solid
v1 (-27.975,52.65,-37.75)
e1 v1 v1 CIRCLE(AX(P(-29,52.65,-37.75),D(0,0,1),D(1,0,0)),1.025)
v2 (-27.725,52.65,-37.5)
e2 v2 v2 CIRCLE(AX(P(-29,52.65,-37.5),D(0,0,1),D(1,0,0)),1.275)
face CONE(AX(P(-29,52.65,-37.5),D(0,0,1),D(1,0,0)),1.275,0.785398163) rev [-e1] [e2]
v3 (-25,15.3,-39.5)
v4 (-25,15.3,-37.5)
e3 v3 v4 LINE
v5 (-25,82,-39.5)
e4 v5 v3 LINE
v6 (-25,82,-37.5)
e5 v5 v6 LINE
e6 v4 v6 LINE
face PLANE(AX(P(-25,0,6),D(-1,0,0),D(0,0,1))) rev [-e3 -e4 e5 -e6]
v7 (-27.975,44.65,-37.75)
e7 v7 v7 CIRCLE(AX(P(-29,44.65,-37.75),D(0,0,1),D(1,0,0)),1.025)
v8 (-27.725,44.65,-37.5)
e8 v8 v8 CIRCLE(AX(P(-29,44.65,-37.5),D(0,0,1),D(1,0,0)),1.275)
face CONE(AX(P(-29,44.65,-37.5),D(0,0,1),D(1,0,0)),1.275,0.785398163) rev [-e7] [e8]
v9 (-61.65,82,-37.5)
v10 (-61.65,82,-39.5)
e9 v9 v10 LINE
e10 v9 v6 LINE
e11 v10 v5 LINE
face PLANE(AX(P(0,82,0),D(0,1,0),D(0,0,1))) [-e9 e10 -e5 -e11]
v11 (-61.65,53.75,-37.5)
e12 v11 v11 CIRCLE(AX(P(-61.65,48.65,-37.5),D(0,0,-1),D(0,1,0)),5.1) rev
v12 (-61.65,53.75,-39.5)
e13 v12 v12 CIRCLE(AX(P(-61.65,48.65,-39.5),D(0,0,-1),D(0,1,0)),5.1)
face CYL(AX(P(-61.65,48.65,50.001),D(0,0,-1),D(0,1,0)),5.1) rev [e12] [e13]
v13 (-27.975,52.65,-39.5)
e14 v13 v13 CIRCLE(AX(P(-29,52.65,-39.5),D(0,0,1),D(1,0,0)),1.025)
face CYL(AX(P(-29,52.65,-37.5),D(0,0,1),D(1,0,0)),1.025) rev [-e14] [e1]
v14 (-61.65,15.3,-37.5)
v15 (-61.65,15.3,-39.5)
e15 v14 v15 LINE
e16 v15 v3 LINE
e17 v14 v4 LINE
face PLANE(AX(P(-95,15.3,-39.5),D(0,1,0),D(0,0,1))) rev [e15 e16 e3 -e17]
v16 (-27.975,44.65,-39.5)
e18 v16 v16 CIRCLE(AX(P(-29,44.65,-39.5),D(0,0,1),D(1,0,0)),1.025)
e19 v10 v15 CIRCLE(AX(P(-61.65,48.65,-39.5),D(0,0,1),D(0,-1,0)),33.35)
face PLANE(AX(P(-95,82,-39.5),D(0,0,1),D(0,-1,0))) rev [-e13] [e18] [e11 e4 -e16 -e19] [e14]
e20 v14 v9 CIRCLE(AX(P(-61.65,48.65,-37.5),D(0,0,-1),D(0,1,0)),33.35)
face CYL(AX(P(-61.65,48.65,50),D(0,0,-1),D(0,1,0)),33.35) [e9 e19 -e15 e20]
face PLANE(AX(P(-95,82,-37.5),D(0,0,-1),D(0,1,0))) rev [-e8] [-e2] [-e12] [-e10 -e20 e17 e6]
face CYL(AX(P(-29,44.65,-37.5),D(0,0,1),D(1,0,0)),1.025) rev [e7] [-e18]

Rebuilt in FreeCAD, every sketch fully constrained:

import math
import FreeCAD as App
import Part
import Sketcher

V = App.Vector
Q = App.Units.Quantity


def edges_at(feature, points):
    """Names of the edges that pass closest to the given points."""
    edges = feature.Shape.Edges
    near = lambda p: min(range(len(edges)), key=lambda i: edges[i].distToShape(Part.Vertex(*p))[0])
    return sorted({f"Edge{near(p) + 1}" for p in points})


def add_polygon(sketch, points):
    """Adds a closed chain of lines whose ends are joined by coincident constraints."""
    first, n = sketch.GeometryCount, len(points)
    for a, b in zip(points, points[1:] + points[:1]):
        sketch.addGeometry(Part.LineSegment(App.Vector(*a, 0), App.Vector(*b, 0)), False)
    for i in range(n):
        sketch.addConstraint(Sketcher.Constraint("Coincident", first + i, 2, first + (i + 1) % n, 1))

doc = App.newDocument("Part")
body = doc.addObject("PartDesign::Body", "Body")

sketch1 = body.newObject("Sketcher::SketchObject", "Sketch")
sketch1.AttachmentSupport = (doc.getObject("XZ_Plane"), [""])
sketch1.MapMode = "FlatFace"
add_polygon(sketch1, [(-25, -50), (-25, 50), (25, 50), (25, -50)])
sketch1.addConstraint([
    Sketcher.Constraint("Vertical", 0),
    Sketcher.Constraint("Horizontal", 1),
    Sketcher.Constraint("Vertical", 2),
    Sketcher.Constraint("Horizontal", 3),
    Sketcher.Constraint("Symmetric", 0, 2, 2, 2, -1, 1),
    Sketcher.Constraint("DistanceX", 1, 1, 1, 2, Q("50 mm")),
    Sketcher.Constraint("DistanceY", 0, 1, 0, 2, Q("100 mm")),
])
pad1 = body.newObject("PartDesign::Pad", "Pad")
pad1.Profile = sketch1
pad1.Length = 2
pad1.Reversed = True

sketch2 = body.newObject("Sketcher::SketchObject", "Sketch001")
sketch2.AttachmentSupport = (doc.getObject("XZ_Plane"), [""])
sketch2.MapMode = "FlatFace"
sketch2.AttachmentOffset = App.Placement(V(0, 0, -2), App.Rotation())
add_polygon(sketch2, [(-25, -50), (-25, 50), (-22, 50), (-22, -50)])
sketch2.addConstraint([
    Sketcher.Constraint("Vertical", 0),
    Sketcher.Constraint("Horizontal", 1),
    Sketcher.Constraint("Vertical", 2),
    Sketcher.Constraint("Horizontal", 3),
    Sketcher.Constraint("DistanceX", 1, 1, 1, 2, Q("3 mm")),
    Sketcher.Constraint("DistanceY", 0, 1, 0, 2, Q("100 mm")),
    Sketcher.Constraint("DistanceX", 0, 2, -1, 1, Q("25 mm")),
    Sketcher.Constraint("DistanceY", -1, 1, 0, 2, Q("50 mm")),
])
pad2 = body.newObject("PartDesign::Pad", "Pad001")
pad2.Profile = sketch2
pad2.Length = 80
pad2.Reversed = True

sketch3 = body.newObject("Sketcher::SketchObject", "Sketch002")
sketch3.AttachmentSupport = (doc.getObject("YZ_Plane"), [""])
sketch3.MapMode = "FlatFace"
sketch3.AttachmentOffset = App.Placement(V(0, 0, -25), App.Rotation())
add_polygon(sketch3, [(82, -50), (15.3, -50), (15.3, -48), (82, -48)])
sketch3.addConstraint([
    Sketcher.Constraint("Horizontal", 0),
    Sketcher.Constraint("Vertical", 1),
    Sketcher.Constraint("Horizontal", 2),
    Sketcher.Constraint("Vertical", 3),
    Sketcher.Constraint("DistanceY", 1, 1, 1, 2, Q("2 mm")),
    Sketcher.Constraint("DistanceX", 0, 2, 0, 1, Q("66.7 mm")),
    Sketcher.Constraint("DistanceY", 0, 2, -1, 1, Q("50 mm")),
    Sketcher.Constraint("DistanceX", -1, 1, 2, 2, Q("82 mm")),
])
pad3 = body.newObject("PartDesign::Pad", "Pad002")
pad3.Profile = sketch3
pad3.Length = 70
pad3.Reversed = True

sketch4 = body.newObject("Sketcher::SketchObject", "Sketch003")
sketch4.AttachmentSupport = (doc.getObject("XY_Plane"), [""])
sketch4.MapMode = "FlatFace"
sketch4.AttachmentOffset = App.Placement(V(0, 0, -50), App.Rotation())
sketch4.addGeometry([
    Part.LineSegment(V(-95, 82, 0), V(-62, 82, 0)),
    Part.ArcOfCircle(Part.Circle(V(-62, 49, 0), V(0, 0, 1), 33), math.radians(90), math.radians(180)),
    Part.LineSegment(V(-95, 49, 0), V(-95, 82, 0)),
], False)
sketch4.addConstraint([
    Sketcher.Constraint("Tangent", 0, 2, 1, 1),
    Sketcher.Constraint("Tangent", 1, 2, 2, 1),
    Sketcher.Constraint("Coincident", 2, 2, 0, 1),
    Sketcher.Constraint("Horizontal", 0),
    Sketcher.Constraint("Vertical", 2),
    Sketcher.Constraint("Radius", 1, Q("33.35 mm")),
    Sketcher.Constraint("DistanceY", -1, 1, 0, 2, Q("82 mm")),
    Sketcher.Constraint("DistanceX", 1, 2, -1, 1, Q("95 mm")),
])
pocket1 = body.newObject("PartDesign::Pocket", "Pocket")
pocket1.Profile = sketch4
pocket1.Type = "UpToFirst"
pocket1.Reversed = True

sketch5 = body.newObject("Sketcher::SketchObject", "Sketch004")
sketch5.AttachmentSupport = (doc.getObject("XY_Plane"), [""])
sketch5.MapMode = "FlatFace"
sketch5.AttachmentOffset = App.Placement(V(0, 0, -50), App.Rotation())
sketch5.addGeometry([
    Part.ArcOfCircle(Part.Circle(V(-62, 49, 0), V(0, 0, 1), 33), math.radians(180), math.radians(270)),
    Part.LineSegment(V(-62, 15, 0), V(-95, 15, 0)),
    Part.LineSegment(V(-95, 15, 0), V(-95, 49, 0)),
], False)
sketch5.addConstraint([
    Sketcher.Constraint("Tangent", 0, 2, 1, 1),
    Sketcher.Constraint("Coincident", 1, 2, 2, 1),
    Sketcher.Constraint("Tangent", 2, 2, 0, 1),
    Sketcher.Constraint("Horizontal", 1),
    Sketcher.Constraint("Vertical", 2),
    Sketcher.Constraint("Radius", 0, Q("33.35 mm")),
    Sketcher.Constraint("DistanceX", 1, 2, -1, 1, Q("95 mm")),
    Sketcher.Constraint("DistanceY", -1, 1, 0, 2, Q("15.3 mm")),
])
pocket2 = body.newObject("PartDesign::Pocket", "Pocket001")
pocket2.Profile = sketch5
pocket2.Type = "UpToFirst"
pocket2.Reversed = True

sketch6 = body.newObject("Sketcher::SketchObject", "Sketch005")
sketch6.AttachmentSupport = (doc.getObject("YZ_Plane"), [""])
sketch6.MapMode = "FlatFace"
sketch6.AttachmentOffset = App.Placement(V(0, 0, -25), App.Rotation())
add_polygon(sketch6, [(82, 6), (15.3, 6), (15.3, 8), (82, 8)])
sketch6.addConstraint([
    Sketcher.Constraint("Horizontal", 0),
    Sketcher.Constraint("Vertical", 1),
    Sketcher.Constraint("Horizontal", 2),
    Sketcher.Constraint("Vertical", 3),
    Sketcher.Constraint("DistanceY", 1, 1, 1, 2, Q("2 mm")),
    Sketcher.Constraint("DistanceX", 0, 2, 0, 1, Q("66.7 mm")),
    Sketcher.Constraint("DistanceY", -1, 1, 0, 2, Q("6 mm")),
    Sketcher.Constraint("DistanceX", -1, 1, 2, 2, Q("82 mm")),
])
pad4 = body.newObject("PartDesign::Pad", "Pad003")
pad4.Profile = sketch6
pad4.Length = 70
pad4.Reversed = True

sketch7 = body.newObject("Sketcher::SketchObject", "Sketch006")
sketch7.AttachmentSupport = (doc.getObject("XY_Plane"), [""])
sketch7.MapMode = "FlatFace"
sketch7.AttachmentOffset = App.Placement(V(0, 0, 8), App.Rotation())
sketch7.addGeometry([
    Part.ArcOfCircle(Part.Circle(V(-62, 49, 0), V(0, 0, 1), 33), math.radians(90), math.radians(180)),
    Part.LineSegment(V(-62, 82, 0), V(-95, 82, 0)),
    Part.LineSegment(V(-95, 82, 0), V(-95, 49, 0)),
], False)
sketch7.addConstraint([
    Sketcher.Constraint("Tangent", 0, 1, 1, 1),
    Sketcher.Constraint("Coincident", 1, 2, 2, 1),
    Sketcher.Constraint("Tangent", 2, 2, 0, 2),
    Sketcher.Constraint("Horizontal", 1),
    Sketcher.Constraint("Vertical", 2),
    Sketcher.Constraint("Radius", 0, Q("33.35 mm")),
    Sketcher.Constraint("DistanceY", -1, 1, 0, 1, Q("82 mm")),
    Sketcher.Constraint("DistanceX", 1, 2, -1, 1, Q("95 mm")),
])
pocket3 = body.newObject("PartDesign::Pocket", "Pocket002")
pocket3.Profile = sketch7
pocket3.Type = "UpToFirst"

sketch8 = body.newObject("Sketcher::SketchObject", "Sketch007")
sketch8.AttachmentSupport = (doc.getObject("XY_Plane"), [""])
sketch8.MapMode = "FlatFace"
sketch8.AttachmentOffset = App.Placement(V(0, 0, 8), App.Rotation())
sketch8.addGeometry([
    Part.ArcOfCircle(Part.Circle(V(-62, 49, 0), V(0, 0, 1), 33), math.radians(180), math.radians(270)),
    Part.LineSegment(V(-95, 49, 0), V(-95, 15, 0)),
    Part.LineSegment(V(-95, 15, 0), V(-62, 15, 0)),
], False)
sketch8.addConstraint([
    Sketcher.Constraint("Tangent", 0, 1, 1, 1),
    Sketcher.Constraint("Coincident", 1, 2, 2, 1),
    Sketcher.Constraint("Tangent", 2, 2, 0, 2),
    Sketcher.Constraint("Vertical", 1),
    Sketcher.Constraint("Horizontal", 2),
    Sketcher.Constraint("Radius", 0, Q("33.35 mm")),
    Sketcher.Constraint("DistanceX", 0, 1, -1, 1, Q("95 mm")),
    Sketcher.Constraint("DistanceY", -1, 1, 1, 2, Q("15.3 mm")),
])
pocket4 = body.newObject("PartDesign::Pocket", "Pocket003")
pocket4.Profile = sketch8
pocket4.Type = "UpToFirst"

sketch9 = body.newObject("Sketcher::SketchObject", "Sketch008")
sketch9.AttachmentSupport = (doc.getObject("XY_Plane"), [""])
sketch9.MapMode = "FlatFace"
sketch9.AttachmentOffset = App.Placement(V(0, 0, 8), App.Rotation())
sketch9.addGeometry([
    Part.Circle(V(-79, 38.6, 0), V(0, 0, 1), 1.2),
    Part.Circle(V(-61.6, 68.7, 0), V(0, 0, 1), 1.2),
    Part.Circle(V(-44.3, 38.6, 0), V(0, 0, 1), 1.2),
], False)
sketch9.addConstraint([
    Sketcher.Constraint("Equal", 0, 1),
    Sketcher.Constraint("Equal", 1, 2),
    Sketcher.Constraint("Horizontal", 0, 3, 2, 3),
    Sketcher.Constraint("Diameter", 0, Q("2.5 mm")),
    Sketcher.Constraint("DistanceY", 0, 3, 1, 3, Q("30 mm")),
    Sketcher.Constraint("DistanceY", -1, 1, 0, 3, Q("38.65 mm")),
    Sketcher.Constraint("DistanceX", 1, 3, -1, 1, Q("61.65 mm")),
    Sketcher.Constraint("DistanceX", 0, 3, -1, 1, Q("78.970508 mm")),
    Sketcher.Constraint("DistanceX", 2, 3, -1, 1, Q("44.329492 mm")),
])
doc.recompute()
hole = body.newObject("PartDesign::Hole", "Hole")
hole.Profile = sketch9
hole.ThreadType = "None"
hole.Diameter = 2.5
hole.DepthType = "Dimension"
hole.Depth = 2
hole.DrillPoint = "Flat"
hole.HoleCutType = "Countersink"
hole.HoleCutDiameter = 3.05
hole.HoleCutCountersinkAngle = 90
doc.recompute()

fillet = body.newObject("PartDesign::Fillet", "Fillet")
fillet.Base = (hole, edges_at(hole, [(-23.5, 82, 50), (25, 1, 50), (25, 1, -50)]))
fillet.Radius = 2

sketch10 = body.newObject("Sketcher::SketchObject", "Sketch009")
sketch10.AttachmentSupport = (doc.getObject("XY_Plane"), [""])
sketch10.MapMode = "FlatFace"
sketch10.AttachmentOffset = App.Placement(V(0, 0, 8), App.Rotation())
sketch10.addGeometry(Part.Circle(V(-62, 49, 0), V(0, 0, 1), 11), False)
sketch10.addConstraint([
    Sketcher.Constraint("Diameter", 0, Q("22 mm")),
    Sketcher.Constraint("DistanceX", 0, 3, -1, 1, Q("61.65 mm")),
    Sketcher.Constraint("DistanceY", -1, 1, 0, 3, Q("48.65 mm")),
])
pocket5 = body.newObject("PartDesign::Pocket", "Pocket004")
pocket5.Profile = sketch10
pocket5.Type = "UpToFirst"

sketch11 = body.newObject("Sketcher::SketchObject", "Sketch010")
sketch11.AttachmentSupport = (doc.getObject("XY_Plane"), [""])
sketch11.MapMode = "FlatFace"
sketch11.AttachmentOffset = App.Placement(V(0, 0, -50), App.Rotation())
sketch11.addGeometry(Part.Circle(V(-62, 49, 0), V(0, 0, 1), 14), False)
sketch11.addConstraint([
    Sketcher.Constraint("Diameter", 0, Q("29 mm")),
    Sketcher.Constraint("DistanceX", 0, 3, -1, 1, Q("61.65 mm")),
    Sketcher.Constraint("DistanceY", -1, 1, 0, 3, Q("48.65 mm")),
])
pocket6 = body.newObject("PartDesign::Pocket", "Pocket005")
pocket6.Profile = sketch11
pocket6.Type = "UpToFirst"
pocket6.Reversed = True

sketch12 = body.newObject("Sketcher::SketchObject", "Sketch011")
sketch12.AttachmentSupport = (doc.getObject("YZ_Plane"), [""])
sketch12.MapMode = "FlatFace"
sketch12.AttachmentOffset = App.Placement(V(0, 0, -25), App.Rotation())
add_polygon(sketch12, [(82, -39.5), (15.3, -39.5), (15.3, -37.5), (82, -37.5)])
sketch12.addConstraint([
    Sketcher.Constraint("Horizontal", 0),
    Sketcher.Constraint("Vertical", 1),
    Sketcher.Constraint("Horizontal", 2),
    Sketcher.Constraint("Vertical", 3),
    Sketcher.Constraint("DistanceY", 1, 1, 1, 2, Q("2 mm")),
    Sketcher.Constraint("DistanceX", 0, 2, 0, 1, Q("66.7 mm")),
    Sketcher.Constraint("DistanceX", -1, 1, 2, 2, Q("82 mm")),
    Sketcher.Constraint("DistanceY", 0, 2, -1, 1, Q("39.5 mm")),
])
pad5 = body.newObject("PartDesign::Pad", "Pad004")
pad5.Profile = sketch12
pad5.Length = 70
pad5.Reversed = True

sketch13 = body.newObject("Sketcher::SketchObject", "Sketch012")
sketch13.AttachmentSupport = (doc.getObject("XY_Plane"), [""])
sketch13.MapMode = "FlatFace"
sketch13.AttachmentOffset = App.Placement(V(0, 0, -39.5), App.Rotation())
sketch13.addGeometry(Part.Circle(V(-62, 49, 0), V(0, 0, 1), 5), False)
sketch13.addConstraint([
    Sketcher.Constraint("Diameter", 0, Q("10.2 mm")),
    Sketcher.Constraint("DistanceX", 0, 3, -1, 1, Q("61.65 mm")),
    Sketcher.Constraint("DistanceY", -1, 1, 0, 3, Q("48.65 mm")),
])
pocket7 = body.newObject("PartDesign::Pocket", "Pocket006")
pocket7.Profile = sketch13
pocket7.Type = "UpToFirst"
pocket7.Reversed = True

sketch14 = body.newObject("Sketcher::SketchObject", "Sketch013")
sketch14.AttachmentSupport = (doc.getObject("XY_Plane"), [""])
sketch14.MapMode = "FlatFace"
sketch14.AttachmentOffset = App.Placement(V(0, 0, -39.5), App.Rotation())
sketch14.addGeometry([
    Part.LineSegment(V(-95, 15, 0), V(-95, 49, 0)),
    Part.ArcOfCircle(Part.Circle(V(-62, 49, 0), V(0, 0, 1), 33), math.radians(180), math.radians(270)),
    Part.LineSegment(V(-62, 15, 0), V(-95, 15, 0)),
    Part.LineSegment(V(-95, 49, 0), V(-95, 82, 0)),
    Part.LineSegment(V(-95, 82, 0), V(-62, 82, 0)),
    Part.ArcOfCircle(Part.Circle(V(-62, 49, 0), V(0, 0, 1), 33), math.radians(90), math.radians(180)),
], False)
sketch14.addConstraint([
    Sketcher.Constraint("Tangent", 0, 2, 1, 1),
    Sketcher.Constraint("Tangent", 1, 2, 2, 1),
    Sketcher.Constraint("Coincident", 2, 2, 0, 1),
    Sketcher.Constraint("Coincident", 3, 2, 4, 1),
    Sketcher.Constraint("Tangent", 4, 2, 5, 1),
    Sketcher.Constraint("Tangent", 5, 2, 3, 1),
    Sketcher.Constraint("Vertical", 0),
    Sketcher.Constraint("Horizontal", 2),
    Sketcher.Constraint("Vertical", 3),
    Sketcher.Constraint("Horizontal", 4),
    Sketcher.Constraint("Coincident", 5, 3, 1, 3),
    Sketcher.Constraint("Equal", 1, 5),
    Sketcher.Constraint("Radius", 1, Q("33.35 mm")),
    Sketcher.Constraint("DistanceX", 0, 2, -1, 1, Q("95 mm")),
    Sketcher.Constraint("DistanceY", -1, 1, 3, 2, Q("82 mm")),
])
pocket8 = body.newObject("PartDesign::Pocket", "Pocket007")
pocket8.Profile = sketch14
pocket8.Type = "ThroughAll"
pocket8.Midplane = True

sketch15 = body.newObject("Sketcher::SketchObject", "Sketch014")
sketch15.AttachmentSupport = (doc.getObject("YZ_Plane"), [""])
sketch15.MapMode = "FlatFace"
sketch15.AttachmentOffset = App.Placement(V(0, 0, -25), App.Rotation())
add_polygon(sketch15, [(82, -50), (15.3, -50), (15.3, -48), (82, -48)])
sketch15.addConstraint([
    Sketcher.Constraint("Horizontal", 0),
    Sketcher.Constraint("Vertical", 1),
    Sketcher.Constraint("Horizontal", 2),
    Sketcher.Constraint("Vertical", 3),
    Sketcher.Constraint("DistanceY", 1, 1, 1, 2, Q("2 mm")),
    Sketcher.Constraint("DistanceX", 0, 2, 0, 1, Q("66.7 mm")),
    Sketcher.Constraint("DistanceY", 0, 2, -1, 1, Q("50 mm")),
    Sketcher.Constraint("DistanceX", -1, 1, 2, 2, Q("82 mm")),
])
pocket9 = body.newObject("PartDesign::Pocket", "Pocket008")
pocket9.Profile = sketch15
pocket9.Type = "ThroughAll"
doc.recompute()

fillet2 = body.newObject("PartDesign::Fillet", "Fillet001")
fillet2.Base = (pocket9, edges_at(pocket9, [(-23.5, 82, -50)]))
fillet2.Radius = 2

sketch16 = body.newObject("Sketcher::SketchObject", "Sketch015")
sketch16.AttachmentSupport = (doc.getObject("XZ_Plane"), [""])
sketch16.MapMode = "FlatFace"
sketch16.AttachmentOffset = App.Placement(V(0, 0, -2), App.Rotation())
add_polygon(sketch16, [(-95, 8), (-25, 8), (-25, 50), (25, 50), (25, -50), (-25, -50), (-25, 6), (-95, 6)])
sketch16.addConstraint([
    Sketcher.Constraint("Horizontal", 0),
    Sketcher.Constraint("Vertical", 1),
    Sketcher.Constraint("Horizontal", 2),
    Sketcher.Constraint("Vertical", 3),
    Sketcher.Constraint("Horizontal", 4),
    Sketcher.Constraint("Vertical", 5),
    Sketcher.Constraint("Horizontal", 6),
    Sketcher.Constraint("Vertical", 7),
    Sketcher.Constraint("Symmetric", 1, 2, 3, 2, -1, 1),
    Sketcher.Constraint("Vertical", 1, 2, 4, 2),
    Sketcher.Constraint("DistanceX", 0, 1, 0, 2, Q("70 mm")),
    Sketcher.Constraint("DistanceX", 2, 1, 2, 2, Q("50 mm")),
    Sketcher.Constraint("DistanceY", 1, 1, 1, 2, Q("42 mm")),
    Sketcher.Constraint("DistanceY", 3, 2, 3, 1, Q("100 mm")),
    Sketcher.Constraint("DistanceY", 5, 1, 5, 2, Q("56 mm")),
])
pocket10 = body.newObject("PartDesign::Pocket", "Pocket009")
pocket10.Profile = sketch16
pocket10.Type = "ThroughAll"
pocket10.Midplane = True

sketch17 = body.newObject("Sketcher::SketchObject", "Sketch016")
sketch17.AttachmentSupport = (doc.getObject("XY_Plane"), [""])
sketch17.MapMode = "FlatFace"
sketch17.AttachmentOffset = App.Placement(V(0, 0, -37.5), App.Rotation())
sketch17.addGeometry([
    Part.Circle(V(-29, 52.6, 0), V(0, 0, 1), 1),
    Part.Circle(V(-29, 44.6, 0), V(0, 0, 1), 1),
], False)
sketch17.addConstraint([
    Sketcher.Constraint("Equal", 0, 1),
    Sketcher.Constraint("Vertical", 0, 3, 1, 3),
    Sketcher.Constraint("Diameter", 0, Q("2.05 mm")),
    Sketcher.Constraint("DistanceX", 0, 3, -1, 1, Q("29 mm")),
    Sketcher.Constraint("DistanceY", 1, 3, 0, 3, Q("8 mm")),
    Sketcher.Constraint("DistanceY", -1, 1, 0, 3, Q("52.65 mm")),
])
doc.recompute()
hole2 = body.newObject("PartDesign::Hole", "Hole001")
hole2.Profile = sketch17
hole2.ThreadType = "None"
hole2.Diameter = 2.05
hole2.DepthType = "ThroughAll"
hole2.HoleCutType = "Countersink"
hole2.HoleCutDiameter = 2.55
hole2.HoleCutCountersinkAngle = 90

doc.recompute()
